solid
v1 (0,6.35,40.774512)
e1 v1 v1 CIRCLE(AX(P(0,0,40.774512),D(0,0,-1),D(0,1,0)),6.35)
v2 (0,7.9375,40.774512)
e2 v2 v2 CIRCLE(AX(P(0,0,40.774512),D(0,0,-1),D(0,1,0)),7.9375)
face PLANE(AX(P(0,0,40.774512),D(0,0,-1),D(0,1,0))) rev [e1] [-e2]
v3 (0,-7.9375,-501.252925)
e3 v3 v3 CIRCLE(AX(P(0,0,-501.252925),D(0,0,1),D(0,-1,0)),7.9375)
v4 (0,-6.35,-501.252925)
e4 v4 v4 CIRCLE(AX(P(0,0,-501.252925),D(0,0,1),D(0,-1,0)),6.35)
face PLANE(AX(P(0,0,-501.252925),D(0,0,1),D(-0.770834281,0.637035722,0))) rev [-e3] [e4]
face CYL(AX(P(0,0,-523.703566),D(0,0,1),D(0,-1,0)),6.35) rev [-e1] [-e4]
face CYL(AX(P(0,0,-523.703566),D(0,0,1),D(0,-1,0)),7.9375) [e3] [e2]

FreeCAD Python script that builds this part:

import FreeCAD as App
import Part
import Sketcher

V = App.Vector
Q = App.Units.Quantity

doc = App.newDocument("Part")
body = doc.addObject("PartDesign::Body", "Body")

# Sketch on XY plane
sketch1 = doc.addObject("Sketcher::SketchObject", "Sketch")
body.addObject(sketch1)
sketch1.AttachmentSupport = (doc.XY_Plane, [""])
sketch1.MapMode = "FlatFace"
sketch1.AttachmentOffset = App.Placement(V(0, 0, 40.774512), App.Rotation())
sketch1.addGeometry([
    Part.Circle(V(0, 0, 0), V(0, 0, 1), 7.9375),
    Part.Circle(V(0, 0, 0), V(0, 0, 1), 6.35),
], False)
sketch1.addConstraint([
    Sketcher.Constraint("Coincident", 0, 3, -1, 1),
    Sketcher.Constraint("Coincident", 1, 3, -1, 1),
    Sketcher.Constraint("Diameter", 1, Q("0.5 in")),
    Sketcher.Constraint("Diameter", 0, Q("0.625 in")),
])
pad1 = doc.addObject("PartDesign::Pad", "Pad")
body.addObject(pad1)
pad1.Profile = sketch1
pad1.Length = 542.027437
pad1.Reversed = True

doc.recompute()
